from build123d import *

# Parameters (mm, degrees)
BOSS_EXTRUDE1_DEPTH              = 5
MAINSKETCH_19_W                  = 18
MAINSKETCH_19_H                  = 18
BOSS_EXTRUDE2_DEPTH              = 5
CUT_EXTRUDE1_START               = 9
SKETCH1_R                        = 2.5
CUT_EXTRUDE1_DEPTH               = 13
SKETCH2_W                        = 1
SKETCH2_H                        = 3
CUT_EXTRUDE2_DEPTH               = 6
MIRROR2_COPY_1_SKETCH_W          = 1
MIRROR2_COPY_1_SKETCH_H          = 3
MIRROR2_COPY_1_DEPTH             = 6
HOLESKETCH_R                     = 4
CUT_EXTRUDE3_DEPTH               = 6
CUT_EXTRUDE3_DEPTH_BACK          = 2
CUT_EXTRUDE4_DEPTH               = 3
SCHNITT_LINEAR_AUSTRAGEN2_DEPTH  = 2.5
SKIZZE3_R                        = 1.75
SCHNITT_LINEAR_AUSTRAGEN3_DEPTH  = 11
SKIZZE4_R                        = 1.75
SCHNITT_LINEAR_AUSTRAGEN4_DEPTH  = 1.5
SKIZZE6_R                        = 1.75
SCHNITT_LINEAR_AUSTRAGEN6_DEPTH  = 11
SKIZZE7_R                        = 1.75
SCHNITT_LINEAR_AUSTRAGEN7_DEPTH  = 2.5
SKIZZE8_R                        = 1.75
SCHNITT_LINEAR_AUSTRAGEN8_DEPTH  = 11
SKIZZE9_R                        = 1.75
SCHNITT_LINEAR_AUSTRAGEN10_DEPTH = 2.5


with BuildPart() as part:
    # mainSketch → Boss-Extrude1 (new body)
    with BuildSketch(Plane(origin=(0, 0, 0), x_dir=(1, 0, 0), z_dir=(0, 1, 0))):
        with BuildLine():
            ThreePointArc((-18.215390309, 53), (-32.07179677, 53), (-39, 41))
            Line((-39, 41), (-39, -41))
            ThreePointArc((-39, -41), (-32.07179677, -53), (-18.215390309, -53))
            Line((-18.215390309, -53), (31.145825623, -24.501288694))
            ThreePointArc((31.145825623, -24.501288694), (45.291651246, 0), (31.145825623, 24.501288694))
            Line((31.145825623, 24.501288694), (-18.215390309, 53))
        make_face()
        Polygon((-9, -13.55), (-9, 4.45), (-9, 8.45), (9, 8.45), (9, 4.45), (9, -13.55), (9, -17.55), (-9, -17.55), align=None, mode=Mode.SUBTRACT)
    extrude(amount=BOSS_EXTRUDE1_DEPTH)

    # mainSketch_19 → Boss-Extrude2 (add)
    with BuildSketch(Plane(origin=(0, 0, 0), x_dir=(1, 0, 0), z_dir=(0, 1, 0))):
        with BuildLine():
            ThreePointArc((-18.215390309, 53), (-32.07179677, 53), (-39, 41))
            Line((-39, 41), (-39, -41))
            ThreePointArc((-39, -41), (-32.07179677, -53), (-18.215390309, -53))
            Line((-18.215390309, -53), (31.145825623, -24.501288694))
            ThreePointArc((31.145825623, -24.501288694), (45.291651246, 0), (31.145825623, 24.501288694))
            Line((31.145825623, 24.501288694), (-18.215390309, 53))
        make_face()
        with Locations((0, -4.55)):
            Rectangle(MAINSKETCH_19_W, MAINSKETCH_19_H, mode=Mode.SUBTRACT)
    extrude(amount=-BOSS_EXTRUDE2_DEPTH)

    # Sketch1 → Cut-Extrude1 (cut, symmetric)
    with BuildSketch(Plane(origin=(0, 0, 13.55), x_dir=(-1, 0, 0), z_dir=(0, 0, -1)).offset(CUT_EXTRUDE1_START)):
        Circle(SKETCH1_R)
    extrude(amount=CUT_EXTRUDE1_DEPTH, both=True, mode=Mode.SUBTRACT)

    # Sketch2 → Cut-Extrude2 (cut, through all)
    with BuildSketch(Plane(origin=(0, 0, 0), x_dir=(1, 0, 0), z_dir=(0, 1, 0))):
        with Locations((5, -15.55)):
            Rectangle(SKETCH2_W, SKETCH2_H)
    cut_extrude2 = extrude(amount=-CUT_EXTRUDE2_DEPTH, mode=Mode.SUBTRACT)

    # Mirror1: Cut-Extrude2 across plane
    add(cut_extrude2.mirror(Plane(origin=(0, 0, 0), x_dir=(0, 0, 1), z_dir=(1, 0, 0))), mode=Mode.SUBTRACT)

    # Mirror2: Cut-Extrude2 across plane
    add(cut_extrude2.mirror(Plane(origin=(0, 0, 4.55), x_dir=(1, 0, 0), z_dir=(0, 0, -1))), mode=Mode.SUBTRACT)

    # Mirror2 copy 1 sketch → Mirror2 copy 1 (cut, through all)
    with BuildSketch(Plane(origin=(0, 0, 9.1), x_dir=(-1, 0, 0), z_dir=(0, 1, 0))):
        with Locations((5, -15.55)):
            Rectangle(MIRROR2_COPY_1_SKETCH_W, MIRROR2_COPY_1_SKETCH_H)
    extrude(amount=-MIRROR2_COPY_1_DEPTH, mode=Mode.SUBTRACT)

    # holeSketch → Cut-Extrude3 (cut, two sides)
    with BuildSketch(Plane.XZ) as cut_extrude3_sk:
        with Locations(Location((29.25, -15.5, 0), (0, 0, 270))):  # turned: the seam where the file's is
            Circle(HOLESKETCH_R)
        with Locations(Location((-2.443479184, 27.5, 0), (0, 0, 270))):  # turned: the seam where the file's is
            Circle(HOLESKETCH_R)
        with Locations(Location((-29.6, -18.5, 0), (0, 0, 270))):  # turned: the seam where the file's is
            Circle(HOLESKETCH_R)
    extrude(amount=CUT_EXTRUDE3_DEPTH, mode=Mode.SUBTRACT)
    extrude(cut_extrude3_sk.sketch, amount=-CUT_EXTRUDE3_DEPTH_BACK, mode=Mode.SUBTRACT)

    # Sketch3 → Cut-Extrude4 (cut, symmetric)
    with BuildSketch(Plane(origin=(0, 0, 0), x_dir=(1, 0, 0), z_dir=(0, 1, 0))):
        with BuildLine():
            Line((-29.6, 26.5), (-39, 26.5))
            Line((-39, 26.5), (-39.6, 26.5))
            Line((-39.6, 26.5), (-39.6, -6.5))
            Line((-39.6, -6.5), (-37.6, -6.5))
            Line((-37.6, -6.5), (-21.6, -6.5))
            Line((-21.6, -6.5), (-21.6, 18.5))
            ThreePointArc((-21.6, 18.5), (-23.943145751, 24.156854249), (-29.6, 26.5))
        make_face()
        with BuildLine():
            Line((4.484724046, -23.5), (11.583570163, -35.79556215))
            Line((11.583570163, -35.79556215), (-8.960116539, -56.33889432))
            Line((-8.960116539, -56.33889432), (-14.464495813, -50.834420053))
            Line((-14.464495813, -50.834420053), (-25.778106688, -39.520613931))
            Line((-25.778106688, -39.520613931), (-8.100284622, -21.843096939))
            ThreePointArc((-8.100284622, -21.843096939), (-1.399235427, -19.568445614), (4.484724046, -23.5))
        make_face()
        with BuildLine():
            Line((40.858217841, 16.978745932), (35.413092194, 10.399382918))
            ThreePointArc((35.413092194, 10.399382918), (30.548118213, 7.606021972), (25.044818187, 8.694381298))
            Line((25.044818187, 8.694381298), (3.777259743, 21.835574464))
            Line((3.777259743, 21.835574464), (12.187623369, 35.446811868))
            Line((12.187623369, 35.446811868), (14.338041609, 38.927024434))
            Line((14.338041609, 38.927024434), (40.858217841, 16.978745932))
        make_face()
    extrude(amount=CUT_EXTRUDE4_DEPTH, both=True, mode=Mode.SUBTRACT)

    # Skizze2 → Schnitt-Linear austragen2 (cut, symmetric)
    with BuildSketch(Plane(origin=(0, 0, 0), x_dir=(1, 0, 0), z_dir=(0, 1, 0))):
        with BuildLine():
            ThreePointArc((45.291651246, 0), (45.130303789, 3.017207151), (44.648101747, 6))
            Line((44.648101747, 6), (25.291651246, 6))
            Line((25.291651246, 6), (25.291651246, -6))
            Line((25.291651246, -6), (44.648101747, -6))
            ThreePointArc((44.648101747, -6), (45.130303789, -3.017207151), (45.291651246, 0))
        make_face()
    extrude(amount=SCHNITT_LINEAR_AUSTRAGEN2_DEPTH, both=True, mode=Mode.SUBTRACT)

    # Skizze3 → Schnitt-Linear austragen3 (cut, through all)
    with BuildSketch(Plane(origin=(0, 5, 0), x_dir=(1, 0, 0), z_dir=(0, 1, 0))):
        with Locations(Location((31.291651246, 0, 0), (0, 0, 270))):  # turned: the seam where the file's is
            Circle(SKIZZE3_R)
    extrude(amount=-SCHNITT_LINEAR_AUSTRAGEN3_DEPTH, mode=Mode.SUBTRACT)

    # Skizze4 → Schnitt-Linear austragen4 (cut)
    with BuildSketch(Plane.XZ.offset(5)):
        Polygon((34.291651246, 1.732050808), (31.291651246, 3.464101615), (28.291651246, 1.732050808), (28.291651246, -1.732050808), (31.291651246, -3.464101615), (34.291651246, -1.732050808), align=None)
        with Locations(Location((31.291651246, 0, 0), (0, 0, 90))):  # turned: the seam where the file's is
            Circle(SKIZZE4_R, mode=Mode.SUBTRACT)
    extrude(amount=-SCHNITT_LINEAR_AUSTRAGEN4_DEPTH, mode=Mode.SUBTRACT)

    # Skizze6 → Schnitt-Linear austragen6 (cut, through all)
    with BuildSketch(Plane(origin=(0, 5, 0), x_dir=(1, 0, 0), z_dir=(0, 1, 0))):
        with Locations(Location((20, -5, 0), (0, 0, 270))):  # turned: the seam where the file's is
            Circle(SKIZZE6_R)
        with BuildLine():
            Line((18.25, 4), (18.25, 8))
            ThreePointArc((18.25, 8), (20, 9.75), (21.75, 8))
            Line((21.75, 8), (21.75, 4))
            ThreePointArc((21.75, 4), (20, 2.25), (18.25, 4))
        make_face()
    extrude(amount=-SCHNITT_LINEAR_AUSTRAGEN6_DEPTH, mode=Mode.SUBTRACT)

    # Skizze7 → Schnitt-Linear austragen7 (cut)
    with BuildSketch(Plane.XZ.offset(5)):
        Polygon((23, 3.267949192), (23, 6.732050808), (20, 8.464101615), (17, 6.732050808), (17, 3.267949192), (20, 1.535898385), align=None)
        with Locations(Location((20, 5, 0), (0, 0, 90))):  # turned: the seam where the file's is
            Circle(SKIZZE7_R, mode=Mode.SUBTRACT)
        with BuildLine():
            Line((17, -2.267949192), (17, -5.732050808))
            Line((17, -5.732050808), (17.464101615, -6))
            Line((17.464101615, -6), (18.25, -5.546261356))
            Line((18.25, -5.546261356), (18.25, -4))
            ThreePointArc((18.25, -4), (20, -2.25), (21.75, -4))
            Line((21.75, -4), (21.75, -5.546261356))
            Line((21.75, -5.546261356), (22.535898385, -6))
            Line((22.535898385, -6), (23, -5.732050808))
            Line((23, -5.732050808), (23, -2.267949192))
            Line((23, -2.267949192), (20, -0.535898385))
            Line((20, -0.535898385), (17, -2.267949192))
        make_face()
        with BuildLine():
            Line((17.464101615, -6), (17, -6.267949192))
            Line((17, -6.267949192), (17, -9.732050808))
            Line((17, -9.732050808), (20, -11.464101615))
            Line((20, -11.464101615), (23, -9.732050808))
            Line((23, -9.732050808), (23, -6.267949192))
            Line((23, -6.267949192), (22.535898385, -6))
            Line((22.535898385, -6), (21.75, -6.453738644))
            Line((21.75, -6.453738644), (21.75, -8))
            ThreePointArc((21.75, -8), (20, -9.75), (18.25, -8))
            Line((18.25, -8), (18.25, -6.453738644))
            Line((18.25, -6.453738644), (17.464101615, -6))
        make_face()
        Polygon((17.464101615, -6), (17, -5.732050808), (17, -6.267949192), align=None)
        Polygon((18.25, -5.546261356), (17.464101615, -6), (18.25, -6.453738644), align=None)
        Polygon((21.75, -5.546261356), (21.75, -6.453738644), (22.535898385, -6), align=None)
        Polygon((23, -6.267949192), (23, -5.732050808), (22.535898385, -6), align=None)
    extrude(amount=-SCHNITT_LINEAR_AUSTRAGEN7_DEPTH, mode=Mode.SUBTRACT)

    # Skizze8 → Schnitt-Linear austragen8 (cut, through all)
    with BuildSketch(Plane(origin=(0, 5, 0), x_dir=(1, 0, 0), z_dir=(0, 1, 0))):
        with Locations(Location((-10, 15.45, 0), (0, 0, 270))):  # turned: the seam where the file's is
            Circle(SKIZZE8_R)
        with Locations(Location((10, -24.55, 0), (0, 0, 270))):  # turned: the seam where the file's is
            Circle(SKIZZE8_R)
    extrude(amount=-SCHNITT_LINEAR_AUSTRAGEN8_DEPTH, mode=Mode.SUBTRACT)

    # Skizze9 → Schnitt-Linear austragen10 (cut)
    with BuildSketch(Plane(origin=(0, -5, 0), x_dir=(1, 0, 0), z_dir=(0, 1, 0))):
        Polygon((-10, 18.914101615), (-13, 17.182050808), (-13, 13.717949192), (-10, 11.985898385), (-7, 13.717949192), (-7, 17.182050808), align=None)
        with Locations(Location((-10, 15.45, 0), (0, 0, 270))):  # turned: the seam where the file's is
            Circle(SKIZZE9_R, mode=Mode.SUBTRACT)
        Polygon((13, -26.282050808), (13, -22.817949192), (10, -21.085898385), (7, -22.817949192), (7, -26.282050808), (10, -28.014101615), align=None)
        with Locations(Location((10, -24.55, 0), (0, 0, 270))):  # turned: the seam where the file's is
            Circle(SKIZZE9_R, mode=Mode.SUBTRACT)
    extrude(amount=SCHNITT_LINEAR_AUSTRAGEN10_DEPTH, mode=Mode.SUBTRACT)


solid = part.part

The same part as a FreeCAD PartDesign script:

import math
import FreeCAD as App
import Part
import Sketcher
from FreeCAD import Vector
Q = App.Units.Quantity


def add_polygon(sketch, points):
    """Adds a closed chain of lines whose ends are joined by coincident constraints."""
    first, n = sketch.GeometryCount, len(points)
    for a, b in zip(points, points[1:] + points[:1]):
        sketch.addGeometry(Part.LineSegment(App.Vector(*a, 0), App.Vector(*b, 0)), False)
    for i in range(n):
        sketch.addConstraint(Sketcher.Constraint("Coincident", first + i, 2, first + (i + 1) % n, 1))

doc = App.newDocument("Part")
body = doc.addObject("PartDesign::Body", "Body")

sketch1 = doc.addObject("Sketcher::SketchObject", "Sketch")
body.addObject(sketch1)
sketch1.AttachmentSupport = (doc.XZ_Plane, [""])
sketch1.MapMode = "FlatFace"
sketch1.addGeometry(Part.ArcOfCircle(Part.Circle(Vector(-25.143594, -41, 0), Vector(0, 0, 1), 13.856406), math.radians(180), math.radians(300)), False)
sketch1.addGeometry(Part.LineSegment(Vector(-39, -41, 0), Vector(-39, 41, 0)), False)
sketch1.addGeometry(Part.ArcOfCircle(Part.Circle(Vector(-25.143594, 41, 0), Vector(0, 0, 1), 13.856406), math.radians(60), math.radians(180)), False)
sketch1.addGeometry(Part.LineSegment(Vector(-18.21539, 53, 0), Vector(31.145826, 24.501289, 0)), False)
sketch1.addGeometry(Part.ArcOfCircle(Part.Circle(Vector(17, 0, 0), Vector(0, 0, 1), 28.291651), math.radians(-60), math.radians(60)), False)
sketch1.addGeometry(Part.LineSegment(Vector(31.145826, -24.501289, 0), Vector(-18.21539, -53, 0)), False)
add_polygon(sketch1, [(-9, 17.55), (-9, -8.45), (9, -8.45), (9, 17.55)])
sketch1.addConstraint(Sketcher.Constraint("Tangent", 0, 1, 1, 1))
sketch1.addConstraint(Sketcher.Constraint("Tangent", 1, 2, 2, 2))
sketch1.addConstraint(Sketcher.Constraint("Tangent", 2, 1, 3, 1))
sketch1.addConstraint(Sketcher.Constraint("Tangent", 3, 2, 4, 2))
sketch1.addConstraint(Sketcher.Constraint("Tangent", 4, 1, 5, 1))
sketch1.addConstraint(Sketcher.Constraint("Tangent", 5, 2, 0, 2))
sketch1.addConstraint(Sketcher.Constraint("Vertical", 1))
sketch1.addConstraint(Sketcher.Constraint("Vertical", 6))
sketch1.addConstraint(Sketcher.Constraint("Horizontal", 7))
sketch1.addConstraint(Sketcher.Constraint("Vertical", 8))
sketch1.addConstraint(Sketcher.Constraint("Horizontal", 9))
sketch1.addConstraint(Sketcher.Constraint("Equal", 0, 2))
sketch1.addConstraint(Sketcher.Constraint("Symmetric", 3, 2, 4, 1, -1))
sketch1.addConstraint(Sketcher.Constraint("DistanceX", 7, 1, 7, 2, Q("18 mm")))
sketch1.addConstraint(Sketcher.Constraint("DistanceY", 1, 1, 1, 2, Q("82 mm")))
sketch1.addConstraint(Sketcher.Constraint("DistanceY", 6, 2, 6, 1, Q("26 mm")))
sketch1.addConstraint(Sketcher.Constraint("Angle", 3, Q("-30 deg")))
sketch1.addConstraint(Sketcher.Constraint("DistanceX", -1, 1, 4, 3, Q("17 mm")))
sketch1.addConstraint(Sketcher.Constraint("DistanceX", 0, 1, -1, 1, Q("39 mm")))
sketch1.addConstraint(Sketcher.Constraint("DistanceY", -1, 1, 2, 1, Q("53 mm")))
sketch1.addConstraint(Sketcher.Constraint("DistanceX", 6, 2, -1, 1, Q("9 mm")))
sketch1.addConstraint(Sketcher.Constraint("DistanceY", 6, 2, -1, 1, Q("8.45 mm")))
pad1 = doc.addObject("PartDesign::Pad", "Pad")
body.addObject(pad1)
pad1.Profile = sketch1
pad1.Length = 5
pad1.Reversed = True

sketch2 = doc.addObject("Sketcher::SketchObject", "Sketch001")
body.addObject(sketch2)
sketch2.AttachmentSupport = (doc.XZ_Plane, [""])
sketch2.MapMode = "FlatFace"
sketch2.addGeometry(Part.ArcOfCircle(Part.Circle(Vector(-25.143594, -41, 0), Vector(0, 0, 1), 13.856406), math.radians(180), math.radians(300)), False)
sketch2.addGeometry(Part.LineSegment(Vector(-39, -41, 0), Vector(-39, 41, 0)), False)
sketch2.addGeometry(Part.ArcOfCircle(Part.Circle(Vector(-25.143594, 41, 0), Vector(0, 0, 1), 13.856406), math.radians(60), math.radians(180)), False)
sketch2.addGeometry(Part.LineSegment(Vector(-18.21539, 53, 0), Vector(31.145826, 24.501289, 0)), False)
sketch2.addGeometry(Part.ArcOfCircle(Part.Circle(Vector(17, 0, 0), Vector(0, 0, 1), 28.291651), math.radians(-60), math.radians(60)), False)
sketch2.addGeometry(Part.LineSegment(Vector(31.145826, -24.501289, 0), Vector(-18.21539, -53, 0)), False)
add_polygon(sketch2, [(9, 13.55), (-9, 13.55), (-9, -4.45), (9, -4.45)])
sketch2.addConstraint(Sketcher.Constraint("Tangent", 0, 1, 1, 1))
sketch2.addConstraint(Sketcher.Constraint("Tangent", 1, 2, 2, 2))
sketch2.addConstraint(Sketcher.Constraint("Tangent", 2, 1, 3, 1))
sketch2.addConstraint(Sketcher.Constraint("Tangent", 3, 2, 4, 2))
sketch2.addConstraint(Sketcher.Constraint("Tangent", 4, 1, 5, 1))
sketch2.addConstraint(Sketcher.Constraint("Tangent", 5, 2, 0, 2))
sketch2.addConstraint(Sketcher.Constraint("Vertical", 1))
sketch2.addConstraint(Sketcher.Constraint("Horizontal", 6))
sketch2.addConstraint(Sketcher.Constraint("Vertical", 7))
sketch2.addConstraint(Sketcher.Constraint("Horizontal", 8))
sketch2.addConstraint(Sketcher.Constraint("Vertical", 9))
sketch2.addConstraint(Sketcher.Constraint("Equal", 0, 2))
sketch2.addConstraint(Sketcher.Constraint("Symmetric", 3, 2, 4, 1, -1))
sketch2.addConstraint(Sketcher.Constraint("Equal", 8, 7))
sketch2.addConstraint(Sketcher.Constraint("DistanceX", 6, 2, 6, 1, Q("18 mm")))
sketch2.addConstraint(Sketcher.Constraint("DistanceY", 1, 1, 1, 2, Q("82 mm")))
sketch2.addConstraint(Sketcher.Constraint("Angle", 3, Q("-30 deg")))
sketch2.addConstraint(Sketcher.Constraint("DistanceX", -1, 1, 4, 3, Q("17 mm")))
sketch2.addConstraint(Sketcher.Constraint("DistanceX", 0, 1, -1, 1, Q("39 mm")))
sketch2.addConstraint(Sketcher.Constraint("DistanceY", -1, 1, 2, 1, Q("53 mm")))
sketch2.addConstraint(Sketcher.Constraint("DistanceX", 6, 2, -1, 1, Q("9 mm")))
sketch2.addConstraint(Sketcher.Constraint("DistanceY", -1, 1, 6, 2, Q("13.55 mm")))
pad2 = doc.addObject("PartDesign::Pad", "Pad001")
body.addObject(pad2)
pad2.Profile = sketch2
pad2.Length = 5

sketch3 = doc.addObject("Sketcher::SketchObject", "Sketch002")
body.addObject(sketch3)
sketch3.AttachmentSupport = (doc.XY_Plane, [""])
sketch3.MapMode = "FlatFace"
sketch3.AttachmentOffset = App.Placement(Vector(0, 0, 4.55), App.Rotation())
sketch3.addGeometry(Part.Circle(Vector(0, 0, 0), Vector(0, 0, 1), 2.5), False)
sketch3.addConstraint(Sketcher.Constraint("Coincident", 0, 3, -1, 1))
sketch3.addConstraint(Sketcher.Constraint("Diameter", 0, Q("5 mm")))
pocket1 = doc.addObject("PartDesign::Pocket", "Pocket")
body.addObject(pocket1)
pocket1.Profile = sketch3
pocket1.Length = 26
pocket1.Midplane = True

sketch4 = doc.addObject("Sketcher::SketchObject", "Sketch003")
body.addObject(sketch4)
sketch4.AttachmentSupport = (doc.XZ_Plane, [""])
sketch4.MapMode = "FlatFace"
add_polygon(sketch4, [(4.5, 14.05), (4.5, 17.05), (5.5, 17.05), (5.5, 14.05)])
sketch4.addConstraint(Sketcher.Constraint("Vertical", 0))
sketch4.addConstraint(Sketcher.Constraint("Horizontal", 1))
sketch4.addConstraint(Sketcher.Constraint("Vertical", 2))
sketch4.addConstraint(Sketcher.Constraint("Horizontal", 3))
sketch4.addConstraint(Sketcher.Constraint("DistanceX", 1, 1, 1, 2, Q("1 mm")))
sketch4.addConstraint(Sketcher.Constraint("DistanceY", 0, 1, 0, 2, Q("3 mm")))
sketch4.addConstraint(Sketcher.Constraint("DistanceX", -1, 1, 0, 2, Q("4.5 mm")))
sketch4.addConstraint(Sketcher.Constraint("DistanceY", -1, 1, 0, 2, Q("17.05 mm")))
pocket2 = doc.addObject("PartDesign::Pocket", "Pocket001")
body.addObject(pocket2)
pocket2.Profile = sketch4
pocket2.Type = "ThroughAll"
pocket2.Reversed = True
doc.recompute()

mirrored = doc.addObject("PartDesign::Mirrored", "Mirrored")
body.addObject(mirrored)
mirrored.Originals = [pocket2]
mirrored.MirrorPlane = (doc.YZ_Plane, [""])
body.Tip = mirrored
doc.recompute()

datumplane = doc.addObject("PartDesign::Plane", "DatumPlane")
body.addObject(datumplane)
datumplane.AttachmentSupport = (doc.XY_Plane, [""])
datumplane.MapMode = "FlatFace"
datumplane.AttachmentOffset = App.Placement(Vector(0, 0, 4.55), App.Rotation())
mirrored2 = doc.addObject("PartDesign::Mirrored", "Mirrored001")
body.addObject(mirrored2)
mirrored2.Originals = [pocket2]
mirrored2.MirrorPlane = (datumplane, [""])
body.Tip = mirrored2

sketch5 = doc.addObject("Sketcher::SketchObject", "Sketch004")
body.addObject(sketch5)
sketch5.AttachmentSupport = (doc.XZ_Plane, [""])
sketch5.MapMode = "FlatFace"
add_polygon(sketch5, [(-4.5, -4.95), (-4.5, -7.95), (-5.5, -7.95), (-5.5, -4.95)])
sketch5.addConstraint(Sketcher.Constraint("Vertical", 0))
sketch5.addConstraint(Sketcher.Constraint("Horizontal", 1))
sketch5.addConstraint(Sketcher.Constraint("Vertical", 2))
sketch5.addConstraint(Sketcher.Constraint("Horizontal", 3))
sketch5.addConstraint(Sketcher.Constraint("DistanceX", 1, 2, 1, 1, Q("1 mm")))
sketch5.addConstraint(Sketcher.Constraint("DistanceY", 0, 2, 0, 1, Q("3 mm")))
sketch5.addConstraint(Sketcher.Constraint("DistanceX", 0, 2, -1, 1, Q("4.5 mm")))
sketch5.addConstraint(Sketcher.Constraint("DistanceY", 0, 2, -1, 1, Q("7.95 mm")))
pocket3 = doc.addObject("PartDesign::Pocket", "Pocket002")
body.addObject(pocket3)
pocket3.Profile = sketch5
pocket3.Type = "ThroughAll"
pocket3.Reversed = True

sketch6 = doc.addObject("Sketcher::SketchObject", "Sketch005")
body.addObject(sketch6)
sketch6.AttachmentSupport = (doc.XZ_Plane, [""])
sketch6.MapMode = "FlatFace"
sketch6.addGeometry(Part.Circle(Vector(29.25, -15.5, 0), Vector(0, 0, 1), 4), False)
sketch6.addGeometry(Part.Circle(Vector(-2.443479, 27.5, 0), Vector(0, 0, 1), 4), False)
sketch6.addGeometry(Part.Circle(Vector(-29.6, -18.5, 0), Vector(0, 0, 1), 4), False)
sketch6.addConstraint(Sketcher.Constraint("Equal", 0, 1))
sketch6.addConstraint(Sketcher.Constraint("Equal", 1, 2))
sketch6.addConstraint(Sketcher.Constraint("Diameter", 0, Q("8 mm")))
sketch6.addConstraint(Sketcher.Constraint("DistanceY", 0, 3, 1, 3, Q("43 mm")))
sketch6.addConstraint(Sketcher.Constraint("DistanceY", 2, 3, 1, 3, Q("46 mm")))
sketch6.addConstraint(Sketcher.Constraint("DistanceY", 0, 3, -1, 1, Q("15.5 mm")))
sketch6.addConstraint(Sketcher.Constraint("DistanceX", 2, 3, -1, 1, Q("29.6 mm")))
sketch6.addConstraint(Sketcher.Constraint("DistanceX", -1, 1, 0, 3, Q("29.25 mm")))
sketch6.addConstraint(Sketcher.Constraint("DistanceX", 1, 3, -1, 1, Q("2.443479 mm")))
pocket4 = doc.addObject("PartDesign::Pocket", "Pocket003")
body.addObject(pocket4)
pocket4.Profile = sketch6
pocket4.Type = "TwoLengths"
pocket4.Length = 6
pocket4.Length2 = 2
pocket4.Reversed = True

sketch7 = doc.addObject("Sketcher::SketchObject", "Sketch006")
body.addObject(sketch7)
sketch7.AttachmentSupport = (doc.XZ_Plane, [""])
sketch7.MapMode = "FlatFace"
sketch7.addGeometry(Part.LineSegment(Vector(-29.6, -26.5, 0), Vector(-39.6, -26.5, 0)), False)
sketch7.addGeometry(Part.LineSegment(Vector(-39.6, -26.5, 0), Vector(-39.6, 6.5, 0)), False)
sketch7.addGeometry(Part.LineSegment(Vector(-39.6, 6.5, 0), Vector(-21.6, 6.5, 0)), False)
sketch7.addGeometry(Part.LineSegment(Vector(-21.6, 6.5, 0), Vector(-21.6, -18.5, 0)), False)
sketch7.addGeometry(Part.ArcOfCircle(Part.Circle(Vector(-29.6, -18.5, 0), Vector(0, 0, 1), 8), math.radians(-90), math.radians(0)), False)
sketch7.addGeometry(Part.LineSegment(Vector(11.58357, 35.795562, 0), Vector(4.484724, 23.5, 0)), False)
sketch7.addGeometry(Part.ArcOfCircle(Part.Circle(Vector(-2.443479, 27.5, 0), Vector(0, 0, 1), 8), math.radians(-134.999506), math.radians(-30)), False)
sketch7.addGeometry(Part.LineSegment(Vector(-8.100285, 21.843097, 0), Vector(-25.778107, 39.520614, 0)), False)
sketch7.addGeometry(Part.LineSegment(Vector(-25.778107, 39.520614, 0), Vector(-14.464496, 50.83442, 0)), False)
sketch7.addGeometry(Part.LineSegment(Vector(-14.464496, 50.83442, 0), Vector(-8.960117, 56.338894, 0)), False)
sketch7.addGeometry(Part.LineSegment(Vector(-8.960117, 56.338894, 0), Vector(11.58357, 35.795562, 0)), False)
sketch7.addGeometry(Part.LineSegment(Vector(35.413092, -10.399383, 0), Vector(40.858218, -16.978746, 0)), False)
sketch7.addGeometry(Part.LineSegment(Vector(40.858218, -16.978746, 0), Vector(14.338042, -38.927024, 0)), False)
sketch7.addGeometry(Part.LineSegment(Vector(14.338042, -38.927024, 0), Vector(12.187623, -35.446812, 0)), False)
sketch7.addGeometry(Part.LineSegment(Vector(12.187623, -35.446812, 0), Vector(3.77726, -21.835574, 0)), False)
sketch7.addGeometry(Part.LineSegment(Vector(3.77726, -21.835574, 0), Vector(25.044818, -8.694381, 0)), False)
sketch7.addGeometry(Part.ArcOfCircle(Part.Circle(Vector(29.25, -15.5, 0), Vector(0, 0, 1), 8), math.radians(39.611389), math.radians(121.711858)), False)
sketch7.addConstraint(Sketcher.Constraint("Coincident", 0, 2, 1, 1))
sketch7.addConstraint(Sketcher.Constraint("Coincident", 1, 2, 2, 1))
sketch7.addConstraint(Sketcher.Constraint("Coincident", 2, 2, 3, 1))
sketch7.addConstraint(Sketcher.Constraint("Tangent", 3, 2, 4, 2))
sketch7.addConstraint(Sketcher.Constraint("Tangent", 4, 1, 0, 1))
sketch7.addConstraint(Sketcher.Constraint("Tangent", 5, 2, 6, 2))
sketch7.addConstraint(Sketcher.Constraint("Tangent", 6, 1, 7, 1))
sketch7.addConstraint(Sketcher.Constraint("Coincident", 7, 2, 8, 1))
sketch7.addConstraint(Sketcher.Constraint("Coincident", 8, 2, 9, 1))
sketch7.addConstraint(Sketcher.Constraint("Coincident", 9, 2, 10, 1))
sketch7.addConstraint(Sketcher.Constraint("Coincident", 10, 2, 5, 1))
sketch7.addConstraint(Sketcher.Constraint("Coincident", 11, 2, 12, 1))
sketch7.addConstraint(Sketcher.Constraint("Coincident", 12, 2, 13, 1))
sketch7.addConstraint(Sketcher.Constraint("Coincident", 13, 2, 14, 1))
sketch7.addConstraint(Sketcher.Constraint("Coincident", 14, 2, 15, 1))
sketch7.addConstraint(Sketcher.Constraint("Tangent", 15, 2, 16, 2))
sketch7.addConstraint(Sketcher.Constraint("Tangent", 16, 1, 11, 1))
sketch7.addConstraint(Sketcher.Constraint("Horizontal", 0))
sketch7.addConstraint(Sketcher.Constraint("Vertical", 1))
sketch7.addConstraint(Sketcher.Constraint("Horizontal", 2))
sketch7.addConstraint(Sketcher.Constraint("Vertical", 3))
sketch7.addConstraint(Sketcher.Constraint("Equal", 4, 6))
sketch7.addConstraint(Sketcher.Constraint("Equal", 6, 16))
sketch7.addConstraint(Sketcher.Constraint("Perpendicular", 7, 8))
sketch7.addConstraint(Sketcher.Constraint("Parallel", 8, 9))
sketch7.addConstraint(Sketcher.Constraint("Perpendicular", 9, 10))
sketch7.addConstraint(Sketcher.Constraint("Perpendicular", 11, 12))
sketch7.addConstraint(Sketcher.Constraint("Parallel", 13, 14))
sketch7.addConstraint(Sketcher.Constraint("Perpendicular", 14, 15))
sketch7.addConstraint(Sketcher.Constraint("Equal", 8, 14))
sketch7.addConstraint(Sketcher.Constraint("Equal", 7, 15))
sketch7.addConstraint(Sketcher.Constraint("Radius", 4, Q("8 mm")))
sketch7.addConstraint(Sketcher.Constraint("DistanceX", 0, 2, 0, 1, Q("10 mm")))
sketch7.addConstraint(Sketcher.Constraint("DistanceY", 1, 1, 1, 2, Q("33 mm")))
sketch7.addConstraint(Sketcher.Constraint("Angle", 5, Q("-120 deg")))
sketch7.addConstraint(Sketcher.Constraint("Distance", 7, Q("25 mm")))
sketch7.addConstraint(Sketcher.Constraint("Distance", 8, Q("16 mm")))
sketch7.addConstraint(Sketcher.Constraint("DistanceY", 4, 3, 6, 3, Q("46 mm")))
sketch7.addConstraint(Sketcher.Constraint("DistanceY", 16, 3, 6, 3, Q("43 mm")))
sketch7.addConstraint(Sketcher.Constraint("DistanceX", 4, 3, -1, 1, Q("29.6 mm")))
sketch7.addConstraint(Sketcher.Constraint("DistanceY", 4, 3, -1, 1, Q("18.5 mm")))
sketch7.addConstraint(Sketcher.Constraint("DistanceX", -1, 1, 16, 3, Q("29.25 mm")))
sketch7.addConstraint(Sketcher.Constraint("DistanceY", 16, 1, 15, 2, Q("1.705002 mm")))
sketch7.addConstraint(Sketcher.Constraint("DistanceX", 15, 2, 11, 2, Q("15.8134 mm")))
sketch7.addConstraint(Sketcher.Constraint("Distance", 10, Q("29.05291 mm")))
sketch7.addConstraint(Sketcher.Constraint("Distance", 11, Q("8.54034 mm")))
sketch7.addConstraint(Sketcher.Constraint("DistanceX", 6, 3, -1, 1, Q("2.443479 mm")))
sketch7.addConstraint(Sketcher.Constraint("DistanceY", -1, 1, 8, 2, Q("50.83442 mm")))
pocket5 = doc.addObject("PartDesign::Pocket", "Pocket004")
body.addObject(pocket5)
pocket5.Profile = sketch7
pocket5.Length = 6
pocket5.Midplane = True

sketch8 = doc.addObject("Sketcher::SketchObject", "Sketch007")
body.addObject(sketch8)
sketch8.AttachmentSupport = (doc.XZ_Plane, [""])
sketch8.MapMode = "FlatFace"
sketch8.addGeometry(Part.ArcOfCircle(Part.Circle(Vector(17, 0, 0), Vector(0, 0, 1), 28.291651), math.radians(-12.24408), math.radians(0)), False)
sketch8.addGeometry(Part.LineSegment(Vector(44.648102, -6, 0), Vector(25.291651, -6, 0)), False)
sketch8.addGeometry(Part.LineSegment(Vector(25.291651, -6, 0), Vector(25.291651, 6, 0)), False)
sketch8.addGeometry(Part.LineSegment(Vector(25.291651, 6, 0), Vector(44.648102, 6, 0)), False)
sketch8.addGeometry(Part.ArcOfCircle(Part.Circle(Vector(17, 0, 0), Vector(0, 0, 1), 28.291651), math.radians(0), math.radians(12.24408)), False)
sketch8.addConstraint(Sketcher.Constraint("Coincident", 0, 1, 1, 1))
sketch8.addConstraint(Sketcher.Constraint("Coincident", 1, 2, 2, 1))
sketch8.addConstraint(Sketcher.Constraint("Coincident", 2, 2, 3, 1))
sketch8.addConstraint(Sketcher.Constraint("Coincident", 3, 2, 4, 2))
sketch8.addConstraint(Sketcher.Constraint("Tangent", 4, 1, 0, 2))
sketch8.addConstraint(Sketcher.Constraint("Horizontal", 1))
sketch8.addConstraint(Sketcher.Constraint("Vertical", 2))
sketch8.addConstraint(Sketcher.Constraint("Horizontal", 3))
sketch8.addConstraint(Sketcher.Constraint("Equal", 0, 4))
sketch8.addConstraint(Sketcher.Constraint("Symmetric", 0, 1, 3, 2, -1))
sketch8.addConstraint(Sketcher.Constraint("PointOnObject", 4, 1, -1))
sketch8.addConstraint(Sketcher.Constraint("DistanceY", 2, 1, 2, 2, Q("12 mm")))
sketch8.addConstraint(Sketcher.Constraint("DistanceX", -1, 1, 0, 3, Q("17 mm")))
sketch8.addConstraint(Sketcher.Constraint("DistanceX", 1, 2, 4, 1, Q("20 mm")))
sketch8.addConstraint(Sketcher.Constraint("Radius", 0, Q("28.291651 mm")))
pocket6 = doc.addObject("PartDesign::Pocket", "Pocket005")
body.addObject(pocket6)
pocket6.Profile = sketch8
pocket6.Length = 5
pocket6.Midplane = True

sketch9 = doc.addObject("Sketcher::SketchObject", "Sketch008")
body.addObject(sketch9)
sketch9.AttachmentSupport = (doc.XZ_Plane, [""])
sketch9.MapMode = "FlatFace"
sketch9.AttachmentOffset = App.Placement(Vector(0, 0, -5), App.Rotation())
sketch9.addGeometry(Part.Circle(Vector(31.291651, 0, 0), Vector(0, 0, 1), 1.75), False)
sketch9.addConstraint(Sketcher.Constraint("PointOnObject", 0, 3, -1))
sketch9.addConstraint(Sketcher.Constraint("Diameter", 0, Q("3.5 mm")))
sketch9.addConstraint(Sketcher.Constraint("DistanceX", -1, 1, 0, 3, Q("31.291651 mm")))
pocket7 = doc.addObject("PartDesign::Pocket", "Pocket006")
body.addObject(pocket7)
pocket7.Profile = sketch9
pocket7.Type = "ThroughAll"
pocket7.Reversed = True

sketch10 = doc.addObject("Sketcher::SketchObject", "Sketch009")
body.addObject(sketch10)
sketch10.AttachmentSupport = (doc.XZ_Plane, [""])
sketch10.MapMode = "FlatFace"
sketch10.AttachmentOffset = App.Placement(Vector(0, 0, 5), App.Rotation())
add_polygon(sketch10, [(34.291651, 1.732051), (31.291651, 3.464102), (28.291651, 1.732051), (28.291651, -1.732051), (31.291651, -3.464102), (34.291651, -1.732051)])
sketch10.addGeometry(Part.Circle(Vector(31.291651, 0, 0), Vector(0, 0, 1), 1.75), False)
sketch10.addConstraint(Sketcher.Constraint("Vertical", 2))
sketch10.addConstraint(Sketcher.Constraint("Vertical", 5))
sketch10.addConstraint(Sketcher.Constraint("Symmetric", 0, 2, 3, 2, -1))
sketch10.addConstraint(Sketcher.Constraint("PointOnObject", 6, 3, -1))
sketch10.addConstraint(Sketcher.Constraint("Parallel", 0, 3))
sketch10.addConstraint(Sketcher.Constraint("Parallel", 1, 4))
sketch10.addConstraint(Sketcher.Constraint("Horizontal", 2, 2, 4, 2))
sketch10.addConstraint(Sketcher.Constraint("Horizontal", 1, 2, 5, 2))
sketch10.addConstraint(Sketcher.Constraint("Vertical", 6, 3, 0, 2))
sketch10.addConstraint(Sketcher.Constraint("Diameter", 6, Q("3.5 mm")))
sketch10.addConstraint(Sketcher.Constraint("Angle", 0, Q("150 deg")))
sketch10.addConstraint(Sketcher.Constraint("DistanceX", 1, 2, 0, 2, Q("3 mm")))
sketch10.addConstraint(Sketcher.Constraint("DistanceY", 2, 2, 2, 1, Q("3.464102 mm")))
sketch10.addConstraint(Sketcher.Constraint("DistanceX", -1, 1, 6, 3, Q("31.291651 mm")))
pocket8 = doc.addObject("PartDesign::Pocket", "Pocket007")
body.addObject(pocket8)
pocket8.Profile = sketch10
pocket8.Length = 1.5

sketch11 = doc.addObject("Sketcher::SketchObject", "Sketch010")
body.addObject(sketch11)
sketch11.AttachmentSupport = (doc.XZ_Plane, [""])
sketch11.MapMode = "FlatFace"
sketch11.AttachmentOffset = App.Placement(Vector(0, 0, -5), App.Rotation())
sketch11.addGeometry(Part.Circle(Vector(20, 5, 0), Vector(0, 0, 1), 1.75), False)
sketch11.addGeometry(Part.LineSegment(Vector(18.25, -8, 0), Vector(18.25, -4, 0)), False)
sketch11.addGeometry(Part.ArcOfCircle(Part.Circle(Vector(20, -4, 0), Vector(0, 0, 1), 1.75), math.radians(0), math.radians(180)), False)
sketch11.addGeometry(Part.LineSegment(Vector(21.75, -4, 0), Vector(21.75, -8, 0)), False)
sketch11.addGeometry(Part.ArcOfCircle(Part.Circle(Vector(20, -8, 0), Vector(0, 0, 1), 1.75), math.radians(180), math.radians(360)), False)
sketch11.addConstraint(Sketcher.Constraint("Tangent", 1, 2, 2, 2))
sketch11.addConstraint(Sketcher.Constraint("Tangent", 2, 1, 3, 1))
sketch11.addConstraint(Sketcher.Constraint("Tangent", 3, 2, 4, 2))
sketch11.addConstraint(Sketcher.Constraint("Tangent", 4, 1, 1, 1))
sketch11.addConstraint(Sketcher.Constraint("Vertical", 1))
sketch11.addConstraint(Sketcher.Constraint("Vertical", 3))
sketch11.addConstraint(Sketcher.Constraint("Equal", 0, 2))
sketch11.addConstraint(Sketcher.Constraint("Vertical", 0, 3, 2, 3))
sketch11.addConstraint(Sketcher.Constraint("Diameter", 0, Q("3.5 mm")))
sketch11.addConstraint(Sketcher.Constraint("DistanceY", 1, 1, 1, 2, Q("4 mm")))
sketch11.addConstraint(Sketcher.Constraint("DistanceX", -1, 1, 0, 3, Q("20 mm")))
sketch11.addConstraint(Sketcher.Constraint("DistanceY", -1, 1, 0, 3, Q("5 mm")))
sketch11.addConstraint(Sketcher.Constraint("DistanceY", 2, 3, -1, 1, Q("4 mm")))
pocket9 = doc.addObject("PartDesign::Pocket", "Pocket008")
body.addObject(pocket9)
pocket9.Profile = sketch11
pocket9.Type = "ThroughAll"
pocket9.Reversed = True

sketch12 = doc.addObject("Sketcher::SketchObject", "Sketch011")
body.addObject(sketch12)
sketch12.AttachmentSupport = (doc.XZ_Plane, [""])
sketch12.MapMode = "FlatFace"
sketch12.AttachmentOffset = App.Placement(Vector(0, 0, 5), App.Rotation())
add_polygon(sketch12, [(23, 3.267949), (23, 6.732051), (20, 8.464102), (17, 6.732051), (17, 3.267949), (20, 1.535898)])
sketch12.addGeometry(Part.Circle(Vector(20, 5, 0), Vector(0, 0, 1), 1.75), False)
add_polygon(sketch12, [(23, -2.267949), (20, -0.535898), (17, -2.267949), (17, -9.732051), (20, -11.464102), (23, -9.732051)])
sketch12.addGeometry(Part.LineSegment(Vector(21.75, -4, 0), Vector(21.75, -8, 0)), False)
sketch12.addGeometry(Part.ArcOfCircle(Part.Circle(Vector(20, -8, 0), Vector(0, 0, 1), 1.75), math.radians(180), math.radians(360)), False)
sketch12.addGeometry(Part.LineSegment(Vector(18.25, -8, 0), Vector(18.25, -4, 0)), False)
sketch12.addGeometry(Part.ArcOfCircle(Part.Circle(Vector(20, -4, 0), Vector(0, 0, 1), 1.75), math.radians(0), math.radians(180)), False)
sketch12.addConstraint(Sketcher.Constraint("Tangent", 13, 2, 14, 2))
sketch12.addConstraint(Sketcher.Constraint("Tangent", 14, 1, 15, 1))
sketch12.addConstraint(Sketcher.Constraint("Tangent", 15, 2, 16, 2))
sketch12.addConstraint(Sketcher.Constraint("Tangent", 16, 1, 13, 1))
sketch12.addConstraint(Sketcher.Constraint("Vertical", 0))
sketch12.addConstraint(Sketcher.Constraint("Vertical", 3))
sketch12.addConstraint(Sketcher.Constraint("Vertical", 9))
sketch12.addConstraint(Sketcher.Constraint("Vertical", 12))
sketch12.addConstraint(Sketcher.Constraint("Vertical", 13))
sketch12.addConstraint(Sketcher.Constraint("Vertical", 15))
sketch12.addConstraint(Sketcher.Constraint("Equal", 6, 14))
sketch12.addConstraint(Sketcher.Constraint("Parallel", 1, 4))
sketch12.addConstraint(Sketcher.Constraint("Parallel", 2, 5))
sketch12.addConstraint(Sketcher.Constraint("Parallel", 4, 7))
sketch12.addConstraint(Sketcher.Constraint("Parallel", 5, 8))
sketch12.addConstraint(Sketcher.Constraint("Parallel", 7, 10))
sketch12.addConstraint(Sketcher.Constraint("Parallel", 8, 11))
sketch12.addConstraint(Sketcher.Constraint("Horizontal", 0, 2, 2, 2))
sketch12.addConstraint(Sketcher.Constraint("Horizontal", 3, 2, 5, 2))
sketch12.addConstraint(Sketcher.Constraint("Horizontal", 9, 2, 11, 2))
sketch12.addConstraint(Sketcher.Constraint("Horizontal", 8, 2, 12, 2))
sketch12.addConstraint(Sketcher.Constraint("Vertical", 6, 3, 14, 3))
sketch12.addConstraint(Sketcher.Constraint("Vertical", 16, 3, 1, 2))
sketch12.addConstraint(Sketcher.Constraint("Vertical", 1, 2, 4, 2))
sketch12.addConstraint(Sketcher.Constraint("Vertical", 4, 2, 7, 2))
sketch12.addConstraint(Sketcher.Constraint("Vertical", 3, 2, 8, 2))
sketch12.addConstraint(Sketcher.Constraint("Diameter", 6, Q("3.5 mm")))
sketch12.addConstraint(Sketcher.Constraint("DistanceY", 13, 2, 13, 1, Q("4 mm")))
sketch12.addConstraint(Sketcher.Constraint("Angle", 1, Q("150 deg")))
sketch12.addConstraint(Sketcher.Constraint("DistanceX", -1, 1, 6, 3, Q("20 mm")))
sketch12.addConstraint(Sketcher.Constraint("DistanceY", -1, 1, 6, 3, Q("5 mm")))
sketch12.addConstraint(Sketcher.Constraint("DistanceY", 14, 3, -1, 1, Q("8 mm")))
sketch12.addConstraint(Sketcher.Constraint("DistanceX", -1, 1, 0, 2, Q("23 mm")))
sketch12.addConstraint(Sketcher.Constraint("DistanceY", 0, 1, 0, 2, Q("3.464102 mm")))
sketch12.addConstraint(Sketcher.Constraint("DistanceY", 9, 2, 9, 1, Q("7.464102 mm")))
sketch12.addConstraint(Sketcher.Constraint("DistanceY", -1, 1, 1, 2, Q("8.464102 mm")))
sketch12.addConstraint(Sketcher.Constraint("DistanceY", 7, 2, -1, 1, Q("0.535898 mm")))
pocket10 = doc.addObject("PartDesign::Pocket", "Pocket009")
body.addObject(pocket10)
pocket10.Profile = sketch12
pocket10.Length = 2.5

sketch13 = doc.addObject("Sketcher::SketchObject", "Sketch012")
body.addObject(sketch13)
sketch13.AttachmentSupport = (doc.XZ_Plane, [""])
sketch13.MapMode = "FlatFace"
sketch13.AttachmentOffset = App.Placement(Vector(0, 0, -5), App.Rotation())
sketch13.addGeometry(Part.Circle(Vector(-10, -15.45, 0), Vector(0, 0, 1), 1.75), False)
sketch13.addGeometry(Part.Circle(Vector(10, 24.55, 0), Vector(0, 0, 1), 1.75), False)
sketch13.addConstraint(Sketcher.Constraint("Equal", 0, 1))
sketch13.addConstraint(Sketcher.Constraint("Diameter", 0, Q("3.5 mm")))
sketch13.addConstraint(Sketcher.Constraint("DistanceX", 0, 3, -1, 1, Q("10 mm")))
sketch13.addConstraint(Sketcher.Constraint("DistanceX", -1, 1, 1, 3, Q("10 mm")))
sketch13.addConstraint(Sketcher.Constraint("DistanceY", 0, 3, 1, 3, Q("40 mm")))
sketch13.addConstraint(Sketcher.Constraint("DistanceY", 0, 3, -1, 1, Q("15.45 mm")))
pocket11 = doc.addObject("PartDesign::Pocket", "Pocket010")
body.addObject(pocket11)
pocket11.Profile = sketch13
pocket11.Type = "ThroughAll"
pocket11.Reversed = True

sketch14 = doc.addObject("Sketcher::SketchObject", "Sketch013")
body.addObject(sketch14)
sketch14.AttachmentSupport = (doc.XZ_Plane, [""])
sketch14.MapMode = "FlatFace"
sketch14.AttachmentOffset = App.Placement(Vector(0, 0, 5), App.Rotation())
add_polygon(sketch14, [(-10, -18.914102), (-13, -17.182051), (-13, -13.717949), (-10, -11.985898), (-7, -13.717949), (-7, -17.182051)])
sketch14.addGeometry(Part.Circle(Vector(-10, -15.45, 0), Vector(0, 0, 1), 1.75), False)
add_polygon(sketch14, [(13, 26.282051), (13, 22.817949), (10, 21.085898), (7, 22.817949), (7, 26.282051), (10, 28.014102)])
sketch14.addGeometry(Part.Circle(Vector(10, 24.55, 0), Vector(0, 0, 1), 1.75), False)
sketch14.addConstraint(Sketcher.Constraint("Vertical", 1))
sketch14.addConstraint(Sketcher.Constraint("Vertical", 4))
sketch14.addConstraint(Sketcher.Constraint("Vertical", 7))
sketch14.addConstraint(Sketcher.Constraint("Vertical", 10))
sketch14.addConstraint(Sketcher.Constraint("Equal", 6, 13))
sketch14.addConstraint(Sketcher.Constraint("Parallel", 0, 3))
sketch14.addConstraint(Sketcher.Constraint("Parallel", 2, 5))
sketch14.addConstraint(Sketcher.Constraint("Parallel", 5, 8))
sketch14.addConstraint(Sketcher.Constraint("Parallel", 3, 9))
sketch14.addConstraint(Sketcher.Constraint("Parallel", 8, 11))
sketch14.addConstraint(Sketcher.Constraint("Parallel", 9, 12))
sketch14.addConstraint(Sketcher.Constraint("Horizontal", 1, 2, 3, 2))
sketch14.addConstraint(Sketcher.Constraint("Horizontal", 0, 2, 4, 2))
sketch14.addConstraint(Sketcher.Constraint("Horizontal", 7, 2, 9, 2))
sketch14.addConstraint(Sketcher.Constraint("Horizontal", 10, 2, 12, 2))
sketch14.addConstraint(Sketcher.Constraint("Vertical", 6, 3, 2, 2))
sketch14.addConstraint(Sketcher.Constraint("Vertical", 2, 2, 5, 2))
sketch14.addConstraint(Sketcher.Constraint("Vertical", 13, 3, 8, 2))
sketch14.addConstraint(Sketcher.Constraint("Equal", 4, 7))
sketch14.addConstraint(Sketcher.Constraint("Equal", 5, 8))
sketch14.addConstraint(Sketcher.Constraint("Diameter", 6, Q("3.5 mm")))
sketch14.addConstraint(Sketcher.Constraint("Angle", 0, Q("150 deg")))
sketch14.addConstraint(Sketcher.Constraint("DistanceX", 6, 3, -1, 1, Q("10 mm")))
sketch14.addConstraint(Sketcher.Constraint("DistanceX", -1, 1, 13, 3, Q("10 mm")))
sketch14.addConstraint(Sketcher.Constraint("DistanceX", 0, 2, -1, 1, Q("13 mm")))
sketch14.addConstraint(Sketcher.Constraint("DistanceY", 6, 3, 13, 3, Q("40 mm")))
sketch14.addConstraint(Sketcher.Constraint("DistanceY", 4, 2, 7, 2, Q("40 mm")))
sketch14.addConstraint(Sketcher.Constraint("DistanceY", 6, 3, -1, 1, Q("15.45 mm")))
sketch14.addConstraint(Sketcher.Constraint("DistanceY", 1, 1, 1, 2, Q("3.464102 mm")))
sketch14.addConstraint(Sketcher.Constraint("DistanceY", 2, 2, -1, 1, Q("11.985898 mm")))
pocket12 = doc.addObject("PartDesign::Pocket", "Pocket011")
body.addObject(pocket12)
pocket12.Profile = sketch14
pocket12.Length = 2.5

doc.recompute()
